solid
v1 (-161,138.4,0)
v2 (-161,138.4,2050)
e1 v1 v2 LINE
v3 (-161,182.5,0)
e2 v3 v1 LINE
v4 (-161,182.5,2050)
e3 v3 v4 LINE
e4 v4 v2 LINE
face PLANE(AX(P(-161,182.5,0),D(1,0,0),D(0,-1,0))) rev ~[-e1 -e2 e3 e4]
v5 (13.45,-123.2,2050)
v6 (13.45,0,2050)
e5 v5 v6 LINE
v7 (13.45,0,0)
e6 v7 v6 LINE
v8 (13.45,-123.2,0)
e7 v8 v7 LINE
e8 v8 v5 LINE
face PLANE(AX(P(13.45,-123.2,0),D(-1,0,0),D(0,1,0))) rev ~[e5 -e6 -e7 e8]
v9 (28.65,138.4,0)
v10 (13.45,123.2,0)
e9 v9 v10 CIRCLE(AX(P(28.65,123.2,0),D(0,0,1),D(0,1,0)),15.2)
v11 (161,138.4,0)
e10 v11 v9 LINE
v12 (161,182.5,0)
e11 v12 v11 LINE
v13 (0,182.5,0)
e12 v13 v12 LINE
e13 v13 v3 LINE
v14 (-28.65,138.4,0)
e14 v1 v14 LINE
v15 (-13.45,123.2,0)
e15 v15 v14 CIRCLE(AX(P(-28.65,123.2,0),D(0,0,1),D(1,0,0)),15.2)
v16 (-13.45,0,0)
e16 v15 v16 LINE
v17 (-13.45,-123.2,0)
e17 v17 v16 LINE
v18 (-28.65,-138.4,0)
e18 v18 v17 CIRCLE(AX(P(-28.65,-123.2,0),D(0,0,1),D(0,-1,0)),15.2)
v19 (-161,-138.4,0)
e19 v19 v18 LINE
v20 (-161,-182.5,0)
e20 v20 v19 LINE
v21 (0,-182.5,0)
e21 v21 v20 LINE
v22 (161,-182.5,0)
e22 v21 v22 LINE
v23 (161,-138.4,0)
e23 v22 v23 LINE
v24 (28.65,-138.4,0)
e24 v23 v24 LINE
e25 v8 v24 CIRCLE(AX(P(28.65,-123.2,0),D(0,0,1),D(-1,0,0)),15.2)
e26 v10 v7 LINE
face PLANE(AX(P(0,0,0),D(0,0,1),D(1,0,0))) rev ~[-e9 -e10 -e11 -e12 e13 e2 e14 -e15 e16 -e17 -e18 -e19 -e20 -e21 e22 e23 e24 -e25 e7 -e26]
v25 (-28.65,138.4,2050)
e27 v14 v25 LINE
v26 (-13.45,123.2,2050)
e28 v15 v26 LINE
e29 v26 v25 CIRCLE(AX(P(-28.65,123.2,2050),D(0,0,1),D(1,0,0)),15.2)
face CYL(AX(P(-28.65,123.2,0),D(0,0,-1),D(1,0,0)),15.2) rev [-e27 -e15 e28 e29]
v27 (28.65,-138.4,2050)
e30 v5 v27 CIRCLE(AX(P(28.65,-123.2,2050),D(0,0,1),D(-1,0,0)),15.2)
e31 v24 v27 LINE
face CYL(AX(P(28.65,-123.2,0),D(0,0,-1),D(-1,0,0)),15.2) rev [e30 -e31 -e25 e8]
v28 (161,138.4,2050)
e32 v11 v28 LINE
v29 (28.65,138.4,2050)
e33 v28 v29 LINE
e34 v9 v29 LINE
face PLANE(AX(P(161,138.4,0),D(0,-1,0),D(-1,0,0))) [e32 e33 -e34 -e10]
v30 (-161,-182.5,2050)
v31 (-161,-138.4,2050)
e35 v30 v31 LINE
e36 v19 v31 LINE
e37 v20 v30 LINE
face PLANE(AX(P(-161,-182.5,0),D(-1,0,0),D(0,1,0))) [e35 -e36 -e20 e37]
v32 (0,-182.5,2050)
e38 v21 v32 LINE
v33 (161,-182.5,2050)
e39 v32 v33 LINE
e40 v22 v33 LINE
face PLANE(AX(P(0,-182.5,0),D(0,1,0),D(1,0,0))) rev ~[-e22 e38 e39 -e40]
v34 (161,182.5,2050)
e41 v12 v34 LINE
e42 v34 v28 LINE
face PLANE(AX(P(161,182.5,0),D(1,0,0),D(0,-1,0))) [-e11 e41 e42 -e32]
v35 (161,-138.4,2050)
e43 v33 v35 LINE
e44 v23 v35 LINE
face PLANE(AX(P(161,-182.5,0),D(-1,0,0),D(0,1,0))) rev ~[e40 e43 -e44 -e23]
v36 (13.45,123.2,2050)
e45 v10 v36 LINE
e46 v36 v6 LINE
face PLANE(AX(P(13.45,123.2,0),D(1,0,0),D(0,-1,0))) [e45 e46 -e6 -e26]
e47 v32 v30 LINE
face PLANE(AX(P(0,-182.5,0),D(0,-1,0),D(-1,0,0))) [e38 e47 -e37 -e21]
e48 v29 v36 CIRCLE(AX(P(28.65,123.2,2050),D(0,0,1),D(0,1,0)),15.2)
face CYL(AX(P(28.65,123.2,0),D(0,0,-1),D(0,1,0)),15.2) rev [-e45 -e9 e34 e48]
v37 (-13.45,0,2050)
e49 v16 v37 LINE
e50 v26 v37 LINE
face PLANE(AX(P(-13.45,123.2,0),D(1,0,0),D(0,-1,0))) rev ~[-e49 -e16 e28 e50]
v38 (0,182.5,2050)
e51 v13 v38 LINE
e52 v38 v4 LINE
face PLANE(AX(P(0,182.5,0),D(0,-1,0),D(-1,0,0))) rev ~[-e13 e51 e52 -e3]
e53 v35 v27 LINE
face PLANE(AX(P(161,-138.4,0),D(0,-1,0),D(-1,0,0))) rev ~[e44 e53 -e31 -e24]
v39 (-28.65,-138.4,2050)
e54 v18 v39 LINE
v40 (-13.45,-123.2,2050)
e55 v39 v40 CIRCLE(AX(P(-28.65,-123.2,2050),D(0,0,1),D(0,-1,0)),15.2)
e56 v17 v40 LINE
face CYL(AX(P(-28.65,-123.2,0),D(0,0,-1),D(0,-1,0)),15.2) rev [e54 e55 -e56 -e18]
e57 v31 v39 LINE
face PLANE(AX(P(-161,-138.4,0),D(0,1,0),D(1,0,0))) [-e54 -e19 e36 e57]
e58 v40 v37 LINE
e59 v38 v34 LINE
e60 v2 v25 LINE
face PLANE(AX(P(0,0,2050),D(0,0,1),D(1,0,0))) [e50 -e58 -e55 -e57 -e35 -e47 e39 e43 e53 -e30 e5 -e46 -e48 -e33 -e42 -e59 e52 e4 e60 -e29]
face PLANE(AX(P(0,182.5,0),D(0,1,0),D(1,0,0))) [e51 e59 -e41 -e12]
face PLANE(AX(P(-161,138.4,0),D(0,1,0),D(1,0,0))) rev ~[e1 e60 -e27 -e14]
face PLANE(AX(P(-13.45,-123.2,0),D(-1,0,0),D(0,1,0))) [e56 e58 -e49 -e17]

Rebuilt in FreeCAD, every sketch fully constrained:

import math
import FreeCAD as App
import Part
import Sketcher
from FreeCAD import Vector
Q = App.Units.Quantity

doc = App.newDocument("Part")
body = doc.addObject("PartDesign::Body", "Body")

# Sketch on XY plane
sketch1 = body.newObject("Sketcher::SketchObject", "Sketch")
sketch1.AttachmentSupport = (doc.getObject("XY_Plane"), [""])
sketch1.MapMode = "FlatFace"
sketch1.addGeometry(Part.LineSegment(Vector(-161, -138, 0), Vector(-161, -182, 0)), False)
sketch1.addGeometry(Part.LineSegment(Vector(-161, -182, 0), Vector(161, -182, 0)), False)
sketch1.addGeometry(Part.LineSegment(Vector(161, -182, 0), Vector(161, -138, 0)), False)
sketch1.addGeometry(Part.LineSegment(Vector(161, -138, 0), Vector(29, -138, 0)), False)
sketch1.addGeometry(Part.ArcOfCircle(Part.Circle(Vector(29, -123, 0), Vector(0, 0, 1), 15), math.radians(180), math.radians(270)), False)
sketch1.addGeometry(Part.LineSegment(Vector(13, -123, 0), Vector(13, 123, 0)), False)
sketch1.addGeometry(Part.ArcOfCircle(Part.Circle(Vector(29, 123, 0), Vector(0, 0, 1), 15), math.radians(90), math.radians(180)), False)
sketch1.addGeometry(Part.LineSegment(Vector(29, 138, 0), Vector(161, 138, 0)), False)
sketch1.addGeometry(Part.LineSegment(Vector(161, 138, 0), Vector(161, 182, 0)), False)
sketch1.addGeometry(Part.LineSegment(Vector(161, 182, 0), Vector(-161, 182, 0)), False)
sketch1.addGeometry(Part.LineSegment(Vector(-161, 182, 0), Vector(-161, 138, 0)), False)
sketch1.addGeometry(Part.LineSegment(Vector(-161, 138, 0), Vector(-29, 138, 0)), False)
sketch1.addGeometry(Part.ArcOfCircle(Part.Circle(Vector(-29, 123, 0), Vector(0, 0, 1), 15), math.radians(0), math.radians(90)), False)
sketch1.addGeometry(Part.LineSegment(Vector(-13, 123, 0), Vector(-13, -123, 0)), False)
sketch1.addGeometry(Part.ArcOfCircle(Part.Circle(Vector(-29, -123, 0), Vector(0, 0, 1), 15), math.radians(-90), math.radians(0)), False)
sketch1.addGeometry(Part.LineSegment(Vector(-29, -138, 0), Vector(-161, -138, 0)), False)
sketch1.addConstraint(Sketcher.Constraint("Coincident", 0, 2, 1, 1))
sketch1.addConstraint(Sketcher.Constraint("Coincident", 1, 2, 2, 1))
sketch1.addConstraint(Sketcher.Constraint("Coincident", 2, 2, 3, 1))
sketch1.addConstraint(Sketcher.Constraint("Tangent", 3, 2, 4, 2))
sketch1.addConstraint(Sketcher.Constraint("Tangent", 4, 1, 5, 1))
sketch1.addConstraint(Sketcher.Constraint("Tangent", 5, 2, 6, 2))
sketch1.addConstraint(Sketcher.Constraint("Tangent", 6, 1, 7, 1))
sketch1.addConstraint(Sketcher.Constraint("Coincident", 7, 2, 8, 1))
sketch1.addConstraint(Sketcher.Constraint("Coincident", 8, 2, 9, 1))
sketch1.addConstraint(Sketcher.Constraint("Coincident", 9, 2, 10, 1))
sketch1.addConstraint(Sketcher.Constraint("Coincident", 10, 2, 11, 1))
sketch1.addConstraint(Sketcher.Constraint("Tangent", 11, 2, 12, 2))
sketch1.addConstraint(Sketcher.Constraint("Tangent", 12, 1, 13, 1))
sketch1.addConstraint(Sketcher.Constraint("Tangent", 13, 2, 14, 2))
sketch1.addConstraint(Sketcher.Constraint("Tangent", 14, 1, 15, 1))
sketch1.addConstraint(Sketcher.Constraint("Coincident", 15, 2, 0, 1))
sketch1.addConstraint(Sketcher.Constraint("Vertical", 0))
sketch1.addConstraint(Sketcher.Constraint("Horizontal", 1))
sketch1.addConstraint(Sketcher.Constraint("Vertical", 2))
sketch1.addConstraint(Sketcher.Constraint("Horizontal", 3))
sketch1.addConstraint(Sketcher.Constraint("Vertical", 5))
sketch1.addConstraint(Sketcher.Constraint("Horizontal", 7))
sketch1.addConstraint(Sketcher.Constraint("Vertical", 8))
sketch1.addConstraint(Sketcher.Constraint("Horizontal", 9))
sketch1.addConstraint(Sketcher.Constraint("Vertical", 10))
sketch1.addConstraint(Sketcher.Constraint("Horizontal", 11))
sketch1.addConstraint(Sketcher.Constraint("Vertical", 13))
sketch1.addConstraint(Sketcher.Constraint("Horizontal", 15))
sketch1.addConstraint(Sketcher.Constraint("Equal", 4, 6))
sketch1.addConstraint(Sketcher.Constraint("Equal", 6, 12))
sketch1.addConstraint(Sketcher.Constraint("Equal", 12, 14))
sketch1.addConstraint(Sketcher.Constraint("Symmetric", 4, 3, 12, 3, -1, 1))
sketch1.addConstraint(Sketcher.Constraint("Symmetric", 0, 2, 8, 2, -1, 1))
sketch1.addConstraint(Sketcher.Constraint("Symmetric", 7, 2, 10, 2, -2))
sketch1.addConstraint(Sketcher.Constraint("Symmetric", 2, 2, 15, 2, -2))
sketch1.addConstraint(Sketcher.Constraint("Radius", 4, Q("15.2 mm")))
sketch1.addConstraint(Sketcher.Constraint("DistanceY", 0, 2, 0, 1, Q("44.1 mm")))
sketch1.addConstraint(Sketcher.Constraint("DistanceX", 0, 2, -1, 1, Q("161 mm")))
sketch1.addConstraint(Sketcher.Constraint("DistanceY", 0, 2, -1, 1, Q("182.5 mm")))
sketch1.addConstraint(Sketcher.Constraint("DistanceX", -1, 1, 4, 1, Q("13.45 mm")))
pad1 = body.newObject("PartDesign::Pad", "Pad")
pad1.Profile = sketch1
pad1.Length = 2050

doc.recompute()
